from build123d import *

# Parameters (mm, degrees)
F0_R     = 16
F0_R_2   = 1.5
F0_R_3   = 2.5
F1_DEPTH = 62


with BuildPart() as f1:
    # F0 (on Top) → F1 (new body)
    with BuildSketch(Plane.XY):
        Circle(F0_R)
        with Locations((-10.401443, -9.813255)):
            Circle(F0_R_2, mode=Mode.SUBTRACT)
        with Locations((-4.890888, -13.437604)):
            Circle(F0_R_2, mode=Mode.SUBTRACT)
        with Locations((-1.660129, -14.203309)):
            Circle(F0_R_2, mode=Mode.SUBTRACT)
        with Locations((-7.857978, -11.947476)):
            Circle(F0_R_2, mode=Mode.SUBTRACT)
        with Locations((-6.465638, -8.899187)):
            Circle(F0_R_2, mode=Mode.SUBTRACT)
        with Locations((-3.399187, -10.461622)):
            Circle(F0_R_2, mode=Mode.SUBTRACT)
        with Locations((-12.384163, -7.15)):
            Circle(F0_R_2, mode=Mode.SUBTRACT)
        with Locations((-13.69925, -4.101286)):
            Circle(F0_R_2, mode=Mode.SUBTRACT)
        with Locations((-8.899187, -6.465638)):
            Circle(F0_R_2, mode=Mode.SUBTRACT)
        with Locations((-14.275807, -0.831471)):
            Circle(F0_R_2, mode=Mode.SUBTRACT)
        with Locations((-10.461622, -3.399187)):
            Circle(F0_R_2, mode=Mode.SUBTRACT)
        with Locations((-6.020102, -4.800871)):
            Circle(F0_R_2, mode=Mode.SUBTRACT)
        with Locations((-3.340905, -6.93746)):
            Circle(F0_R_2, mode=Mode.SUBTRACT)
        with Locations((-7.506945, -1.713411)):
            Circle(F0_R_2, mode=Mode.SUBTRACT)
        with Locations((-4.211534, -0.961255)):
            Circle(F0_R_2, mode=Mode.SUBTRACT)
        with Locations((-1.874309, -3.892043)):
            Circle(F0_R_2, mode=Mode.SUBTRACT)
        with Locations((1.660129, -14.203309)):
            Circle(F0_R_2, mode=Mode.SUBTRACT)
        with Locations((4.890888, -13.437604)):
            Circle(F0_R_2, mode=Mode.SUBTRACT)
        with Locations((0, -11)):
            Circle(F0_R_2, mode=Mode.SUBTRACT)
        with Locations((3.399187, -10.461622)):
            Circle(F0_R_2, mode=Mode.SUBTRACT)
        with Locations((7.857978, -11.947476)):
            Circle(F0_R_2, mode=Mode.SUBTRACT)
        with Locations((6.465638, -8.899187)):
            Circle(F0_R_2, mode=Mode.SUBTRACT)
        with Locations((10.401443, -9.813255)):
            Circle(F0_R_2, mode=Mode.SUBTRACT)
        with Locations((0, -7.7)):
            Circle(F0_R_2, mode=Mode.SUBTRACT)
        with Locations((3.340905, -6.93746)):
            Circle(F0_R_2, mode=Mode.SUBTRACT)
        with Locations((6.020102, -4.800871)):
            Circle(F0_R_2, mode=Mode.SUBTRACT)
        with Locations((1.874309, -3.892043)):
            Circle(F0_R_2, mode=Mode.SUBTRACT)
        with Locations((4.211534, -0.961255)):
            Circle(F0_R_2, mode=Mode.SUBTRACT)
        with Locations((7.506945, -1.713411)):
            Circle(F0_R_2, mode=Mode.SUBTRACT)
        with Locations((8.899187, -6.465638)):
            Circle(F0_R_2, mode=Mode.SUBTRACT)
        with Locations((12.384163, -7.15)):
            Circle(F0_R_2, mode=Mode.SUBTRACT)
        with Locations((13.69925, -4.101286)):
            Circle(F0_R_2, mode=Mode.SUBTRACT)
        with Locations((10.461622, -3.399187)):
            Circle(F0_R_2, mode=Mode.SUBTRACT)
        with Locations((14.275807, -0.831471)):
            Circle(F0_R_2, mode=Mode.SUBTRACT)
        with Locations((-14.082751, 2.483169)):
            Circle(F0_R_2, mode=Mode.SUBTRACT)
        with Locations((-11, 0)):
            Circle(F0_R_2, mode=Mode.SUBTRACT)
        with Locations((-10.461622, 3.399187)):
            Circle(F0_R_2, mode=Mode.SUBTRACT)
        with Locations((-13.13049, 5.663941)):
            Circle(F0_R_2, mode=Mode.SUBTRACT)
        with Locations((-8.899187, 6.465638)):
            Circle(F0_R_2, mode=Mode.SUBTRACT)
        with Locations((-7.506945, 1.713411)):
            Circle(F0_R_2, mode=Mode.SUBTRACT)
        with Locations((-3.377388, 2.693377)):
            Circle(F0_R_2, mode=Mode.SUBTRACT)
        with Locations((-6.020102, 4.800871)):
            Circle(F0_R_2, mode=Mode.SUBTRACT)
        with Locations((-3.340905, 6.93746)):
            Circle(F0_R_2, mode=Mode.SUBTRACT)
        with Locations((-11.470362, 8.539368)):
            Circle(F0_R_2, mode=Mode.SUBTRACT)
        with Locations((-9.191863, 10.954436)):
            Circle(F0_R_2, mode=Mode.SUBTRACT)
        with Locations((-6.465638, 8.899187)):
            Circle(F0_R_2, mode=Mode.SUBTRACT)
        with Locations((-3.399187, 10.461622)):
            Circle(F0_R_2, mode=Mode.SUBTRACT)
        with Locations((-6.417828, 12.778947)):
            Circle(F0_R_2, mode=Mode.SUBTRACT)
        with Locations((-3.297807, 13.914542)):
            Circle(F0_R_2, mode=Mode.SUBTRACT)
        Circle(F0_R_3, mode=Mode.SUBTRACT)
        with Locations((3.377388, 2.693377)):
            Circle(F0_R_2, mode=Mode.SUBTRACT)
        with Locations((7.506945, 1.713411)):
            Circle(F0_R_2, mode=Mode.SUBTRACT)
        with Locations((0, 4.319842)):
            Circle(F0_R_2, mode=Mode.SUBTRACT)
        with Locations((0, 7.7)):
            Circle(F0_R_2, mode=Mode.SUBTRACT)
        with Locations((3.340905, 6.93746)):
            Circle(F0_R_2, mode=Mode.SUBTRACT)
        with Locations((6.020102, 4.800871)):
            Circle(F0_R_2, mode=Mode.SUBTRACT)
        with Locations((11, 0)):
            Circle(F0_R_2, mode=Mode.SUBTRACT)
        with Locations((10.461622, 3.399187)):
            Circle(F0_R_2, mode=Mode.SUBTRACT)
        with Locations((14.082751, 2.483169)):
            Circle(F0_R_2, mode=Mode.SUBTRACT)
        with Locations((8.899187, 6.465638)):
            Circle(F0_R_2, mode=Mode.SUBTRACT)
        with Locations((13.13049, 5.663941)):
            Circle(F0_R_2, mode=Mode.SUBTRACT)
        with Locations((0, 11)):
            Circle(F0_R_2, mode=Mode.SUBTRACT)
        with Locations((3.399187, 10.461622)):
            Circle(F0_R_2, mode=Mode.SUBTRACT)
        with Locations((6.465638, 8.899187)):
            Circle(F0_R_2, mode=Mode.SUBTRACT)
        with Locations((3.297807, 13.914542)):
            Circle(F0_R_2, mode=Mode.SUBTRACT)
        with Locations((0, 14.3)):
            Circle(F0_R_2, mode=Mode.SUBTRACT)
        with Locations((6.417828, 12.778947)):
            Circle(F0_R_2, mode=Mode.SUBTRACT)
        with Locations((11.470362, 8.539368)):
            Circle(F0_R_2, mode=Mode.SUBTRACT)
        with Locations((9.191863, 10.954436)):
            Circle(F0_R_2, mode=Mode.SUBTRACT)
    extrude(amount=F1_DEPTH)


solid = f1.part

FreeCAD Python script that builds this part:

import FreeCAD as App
import Part
import Sketcher
from FreeCAD import Vector
Q = App.Units.Quantity

doc = App.newDocument("Part")
body = doc.addObject("PartDesign::Body", "Body")

# Sketch on XY plane
sketch1 = doc.addObject("Sketcher::SketchObject", "Sketch")
body.addObject(sketch1)
sketch1.AttachmentSupport = (doc.XY_Plane, [""])
sketch1.MapMode = "FlatFace"
sketch1.addGeometry([
    Part.Circle(Vector(0, 0, 0), Vector(0, 0, 1), 16),  # 0
    Part.Circle(Vector(-10.4, -9.8, 0), Vector(0, 0, 1), 1.5),  # 1
    Part.Circle(Vector(-7.9, -11.9, 0), Vector(0, 0, 1), 1.5),  # 2
    Part.Circle(Vector(-4.9, -13.4, 0), Vector(0, 0, 1), 1.5),  # 3
    Part.Circle(Vector(-1.7, -14.2, 0), Vector(0, 0, 1), 1.5),  # 4
    Part.Circle(Vector(-6.5, -8.9, 0), Vector(0, 0, 1), 1.5),  # 5
    Part.Circle(Vector(-3.4, -10.5, 0), Vector(0, 0, 1), 1.5),  # 6
    Part.Circle(Vector(-12.4, -7.2, 0), Vector(0, 0, 1), 1.5),  # 7
    Part.Circle(Vector(-13.7, -4.1, 0), Vector(0, 0, 1), 1.5),  # 8
    Part.Circle(Vector(-8.9, -6.5, 0), Vector(0, 0, 1), 1.5),  # 9
    Part.Circle(Vector(-14.3, -0.8, 0), Vector(0, 0, 1), 1.5),  # 10
    Part.Circle(Vector(-10.5, -3.4, 0), Vector(0, 0, 1), 1.5),  # 11
    Part.Circle(Vector(-11, 0, 0), Vector(0, 0, 1), 1.5),  # 12
    Part.Circle(Vector(-6, -4.8, 0), Vector(0, 0, 1), 1.5),  # 13
    Part.Circle(Vector(-3.3, -6.9, 0), Vector(0, 0, 1), 1.5),  # 14
    Part.Circle(Vector(-1.9, -3.9, 0), Vector(0, 0, 1), 1.5),  # 15
    Part.Circle(Vector(-7.5, -1.7, 0), Vector(0, 0, 1), 1.5),  # 16
    Part.Circle(Vector(-4.2, -1, 0), Vector(0, 0, 1), 1.5),  # 17
    Part.Circle(Vector(1.7, -14.2, 0), Vector(0, 0, 1), 1.5),  # 18
    Part.Circle(Vector(4.9, -13.4, 0), Vector(0, 0, 1), 1.5),  # 19
    Part.Circle(Vector(7.9, -11.9, 0), Vector(0, 0, 1), 1.5),  # 20
    Part.Circle(Vector(0, -11, 0), Vector(0, 0, 1), 1.5),  # 21
    Part.Circle(Vector(3.4, -10.5, 0), Vector(0, 0, 1), 1.5),  # 22
    Part.Circle(Vector(6.5, -8.9, 0), Vector(0, 0, 1), 1.5),  # 23
    Part.Circle(Vector(10.4, -9.8, 0), Vector(0, 0, 1), 1.5),  # 24
    Part.Circle(Vector(0, -7.7, 0), Vector(0, 0, 1), 1.5),  # 25
    Part.Circle(Vector(3.3, -6.9, 0), Vector(0, 0, 1), 1.5),  # 26
    Part.Circle(Vector(1.9, -3.9, 0), Vector(0, 0, 1), 1.5),  # 27
    Part.Circle(Vector(6, -4.8, 0), Vector(0, 0, 1), 1.5),  # 28
    Part.Circle(Vector(0, 0, 0), Vector(0, 0, 1), 2.5),  # 29
    Part.Circle(Vector(4.2, -1, 0), Vector(0, 0, 1), 1.5),  # 30
    Part.Circle(Vector(7.5, -1.7, 0), Vector(0, 0, 1), 1.5),  # 31
    Part.Circle(Vector(8.9, -6.5, 0), Vector(0, 0, 1), 1.5),  # 32
    Part.Circle(Vector(12.4, -7.2, 0), Vector(0, 0, 1), 1.5),  # 33
    Part.Circle(Vector(13.7, -4.1, 0), Vector(0, 0, 1), 1.5),  # 34
    Part.Circle(Vector(10.5, -3.4, 0), Vector(0, 0, 1), 1.5),  # 35
    Part.Circle(Vector(11, 0, 0), Vector(0, 0, 1), 1.5),  # 36
    Part.Circle(Vector(14.3, -0.8, 0), Vector(0, 0, 1), 1.5),  # 37
    Part.Circle(Vector(-14.1, 2.5, 0), Vector(0, 0, 1), 1.5),  # 38
    Part.Circle(Vector(-10.5, 3.4, 0), Vector(0, 0, 1), 1.5),  # 39
    Part.Circle(Vector(-13.1, 5.7, 0), Vector(0, 0, 1), 1.5),  # 40
    Part.Circle(Vector(-8.9, 6.5, 0), Vector(0, 0, 1), 1.5),  # 41
    Part.Circle(Vector(-7.5, 1.7, 0), Vector(0, 0, 1), 1.5),  # 42
    Part.Circle(Vector(-3.4, 2.7, 0), Vector(0, 0, 1), 1.5),  # 43
    Part.Circle(Vector(-6, 4.8, 0), Vector(0, 0, 1), 1.5),  # 44
    Part.Circle(Vector(-3.3, 6.9, 0), Vector(0, 0, 1), 1.5),  # 45
    Part.Circle(Vector(-11.5, 8.5, 0), Vector(0, 0, 1), 1.5),  # 46
    Part.Circle(Vector(-9.2, 11, 0), Vector(0, 0, 1), 1.5),  # 47
    Part.Circle(Vector(-6.5, 8.9, 0), Vector(0, 0, 1), 1.5),  # 48
    Part.Circle(Vector(-3.4, 10.5, 0), Vector(0, 0, 1), 1.5),  # 49
    Part.Circle(Vector(-6.4, 12.8, 0), Vector(0, 0, 1), 1.5),  # 50
    Part.Circle(Vector(-3.3, 13.9, 0), Vector(0, 0, 1), 1.5),  # 51
    Part.Circle(Vector(3.4, 2.7, 0), Vector(0, 0, 1), 1.5),  # 52
    Part.Circle(Vector(7.5, 1.7, 0), Vector(0, 0, 1), 1.5),  # 53
    Part.Circle(Vector(0, 4.3, 0), Vector(0, 0, 1), 1.5),  # 54
    Part.Circle(Vector(0, 7.7, 0), Vector(0, 0, 1), 1.5),  # 55
    Part.Circle(Vector(3.3, 6.9, 0), Vector(0, 0, 1), 1.5),  # 56
    Part.Circle(Vector(6, 4.8, 0), Vector(0, 0, 1), 1.5),  # 57
    Part.Circle(Vector(10.5, 3.4, 0), Vector(0, 0, 1), 1.5),  # 58
    Part.Circle(Vector(14.1, 2.5, 0), Vector(0, 0, 1), 1.5),  # 59
    Part.Circle(Vector(8.9, 6.5, 0), Vector(0, 0, 1), 1.5),  # 60
    Part.Circle(Vector(13.1, 5.7, 0), Vector(0, 0, 1), 1.5),  # 61
    Part.Circle(Vector(0, 11, 0), Vector(0, 0, 1), 1.5),  # 62
    Part.Circle(Vector(3.4, 10.5, 0), Vector(0, 0, 1), 1.5),  # 63
    Part.Circle(Vector(6.5, 8.9, 0), Vector(0, 0, 1), 1.5),  # 64
    Part.Circle(Vector(0, 14.3, 0), Vector(0, 0, 1), 1.5),  # 65
    Part.Circle(Vector(3.3, 13.9, 0), Vector(0, 0, 1), 1.5),  # 66
    Part.Circle(Vector(6.4, 12.8, 0), Vector(0, 0, 1), 1.5),  # 67
    Part.Circle(Vector(11.5, 8.5, 0), Vector(0, 0, 1), 1.5),  # 68
    Part.Circle(Vector(9.2, 11, 0), Vector(0, 0, 1), 1.5),  # 69
], False)
sketch1.addConstraint([
    Sketcher.Constraint("Coincident", 0, 3, -1, 1),
    Sketcher.Constraint("Coincident", 29, 3, -1, 1),
    Sketcher.Constraint("Equal", 1, 2),
    Sketcher.Constraint("Equal", 2, 3),
    Sketcher.Constraint("Equal", 3, 4),
    Sketcher.Constraint("Equal", 4, 5),
    Sketcher.Constraint("Equal", 5, 6),
    Sketcher.Constraint("Equal", 6, 7),
    Sketcher.Constraint("Equal", 7, 8),
    Sketcher.Constraint("Equal", 8, 9),
    Sketcher.Constraint("Equal", 9, 10),
    Sketcher.Constraint("Equal", 10, 11),
    Sketcher.Constraint("Equal", 11, 12),
    Sketcher.Constraint("Equal", 12, 13),
    Sketcher.Constraint("Equal", 13, 14),
    Sketcher.Constraint("Equal", 14, 15),
    Sketcher.Constraint("Equal", 15, 16),
    Sketcher.Constraint("Equal", 16, 17),
    Sketcher.Constraint("Equal", 17, 18),
    Sketcher.Constraint("Equal", 18, 19),
    Sketcher.Constraint("Equal", 19, 20),
    Sketcher.Constraint("Equal", 20, 21),
    Sketcher.Constraint("Equal", 21, 22),
    Sketcher.Constraint("Equal", 22, 23),
    Sketcher.Constraint("Equal", 23, 24),
    Sketcher.Constraint("Equal", 24, 25),
    Sketcher.Constraint("Equal", 25, 26),
    Sketcher.Constraint("Equal", 26, 27),
    Sketcher.Constraint("Equal", 27, 28),
    Sketcher.Constraint("Equal", 28, 30),
    Sketcher.Constraint("Equal", 30, 31),
    Sketcher.Constraint("Equal", 31, 32),
    Sketcher.Constraint("Equal", 32, 33),
    Sketcher.Constraint("Equal", 33, 34),
    Sketcher.Constraint("Equal", 34, 35),
    Sketcher.Constraint("Equal", 35, 36),
    Sketcher.Constraint("Equal", 36, 37),
    Sketcher.Constraint("Equal", 37, 38),
    Sketcher.Constraint("Equal", 38, 39),
    Sketcher.Constraint("Equal", 39, 40),
    Sketcher.Constraint("Equal", 40, 41),
    Sketcher.Constraint("Equal", 41, 42),
    Sketcher.Constraint("Equal", 42, 43),
    Sketcher.Constraint("Equal", 43, 44),
    Sketcher.Constraint("Equal", 44, 45),
    Sketcher.Constraint("Equal", 45, 46),
    Sketcher.Constraint("Equal", 46, 47),
    Sketcher.Constraint("Equal", 47, 48),
    Sketcher.Constraint("Equal", 48, 49),
    Sketcher.Constraint("Equal", 49, 50),
    Sketcher.Constraint("Equal", 50, 51),
    Sketcher.Constraint("Equal", 51, 52),
    Sketcher.Constraint("Equal", 52, 53),
    Sketcher.Constraint("Equal", 53, 54),
    Sketcher.Constraint("Equal", 54, 55),
    Sketcher.Constraint("Equal", 55, 56),
    Sketcher.Constraint("Equal", 56, 57),
    Sketcher.Constraint("Equal", 57, 58),
    Sketcher.Constraint("Equal", 58, 59),
    Sketcher.Constraint("Equal", 59, 60),
    Sketcher.Constraint("Equal", 60, 61),
    Sketcher.Constraint("Equal", 61, 62),
    Sketcher.Constraint("Equal", 62, 63),
    Sketcher.Constraint("Equal", 63, 64),
    Sketcher.Constraint("Equal", 64, 65),
    Sketcher.Constraint("Equal", 65, 66),
    Sketcher.Constraint("Equal", 66, 67),
    Sketcher.Constraint("Equal", 67, 68),
    Sketcher.Constraint("Equal", 68, 69),
    Sketcher.Constraint("Symmetric", 12, 3, 36, 3, -1, 1),
    Sketcher.Constraint("Symmetric", 35, 3, 39, 3, -1, 1),
    Sketcher.Constraint("Symmetric", 32, 3, 41, 3, -1, 1),
    Sketcher.Constraint("Symmetric", 31, 3, 42, 3, -1, 1),
    Sketcher.Constraint("Symmetric", 28, 3, 44, 3, -1, 1),
    Sketcher.Constraint("Symmetric", 26, 3, 45, 3, -1, 1),
    Sketcher.Constraint("Symmetric", 23, 3, 48, 3, -1, 1),
    Sketcher.Constraint("Symmetric", 22, 3, 49, 3, -1, 1),
    Sketcher.Constraint("Symmetric", 16, 3, 53, 3, -1, 1),
    Sketcher.Constraint("Symmetric", 25, 3, 55, 3, -1, 1),
    Sketcher.Constraint("Symmetric", 14, 3, 56, 3, -1, 1),
    Sketcher.Constraint("Symmetric", 13, 3, 57, 3, -1, 1),
    Sketcher.Constraint("Symmetric", 11, 3, 58, 3, -1, 1),
    Sketcher.Constraint("Symmetric", 9, 3, 60, 3, -1, 1),
    Sketcher.Constraint("Symmetric", 21, 3, 62, 3, -1, 1),
    Sketcher.Constraint("Symmetric", 6, 3, 63, 3, -1, 1),
    Sketcher.Constraint("Symmetric", 5, 3, 64, 3, -1, 1),
    Sketcher.Constraint("Symmetric", 4, 3, 18, 3, -2),
    Sketcher.Constraint("Symmetric", 3, 3, 19, 3, -2),
    Sketcher.Constraint("Symmetric", 2, 3, 20, 3, -2),
    Sketcher.Constraint("Symmetric", 6, 3, 22, 3, -2),
    Sketcher.Constraint("Symmetric", 5, 3, 23, 3, -2),
    Sketcher.Constraint("Symmetric", 1, 3, 24, 3, -2),
    Sketcher.Constraint("Symmetric", 14, 3, 26, 3, -2),
    Sketcher.Constraint("Symmetric", 15, 3, 27, 3, -2),
    Sketcher.Constraint("Symmetric", 13, 3, 28, 3, -2),
    Sketcher.Constraint("Symmetric", 17, 3, 30, 3, -2),
    Sketcher.Constraint("Symmetric", 16, 3, 31, 3, -2),
    Sketcher.Constraint("Symmetric", 9, 3, 32, 3, -2),
    Sketcher.Constraint("Symmetric", 7, 3, 33, 3, -2),
    Sketcher.Constraint("Symmetric", 8, 3, 34, 3, -2),
    Sketcher.Constraint("Symmetric", 11, 3, 35, 3, -2),
    Sketcher.Constraint("Symmetric", 10, 3, 37, 3, -2),
    Sketcher.Constraint("Symmetric", 43, 3, 52, 3, -2),
    Sketcher.Constraint("Symmetric", 38, 3, 59, 3, -2),
    Sketcher.Constraint("Symmetric", 40, 3, 61, 3, -2),
    Sketcher.Constraint("Symmetric", 51, 3, 66, 3, -2),
    Sketcher.Constraint("Symmetric", 50, 3, 67, 3, -2),
    Sketcher.Constraint("Symmetric", 46, 3, 68, 3, -2),
    Sketcher.Constraint("Symmetric", 47, 3, 69, 3, -2),
    Sketcher.Constraint("PointOnObject", 12, 3, -1),
    Sketcher.Constraint("PointOnObject", 21, 3, -2),
    Sketcher.Constraint("PointOnObject", 25, 3, -2),
    Sketcher.Constraint("PointOnObject", 54, 3, -2),
    Sketcher.Constraint("PointOnObject", 65, 3, -2),
    Sketcher.Constraint("Diameter", 0, Q("32 mm")),
    Sketcher.Constraint("Diameter", 1, Q("3 mm")),
    Sketcher.Constraint("Diameter", 29, Q("5 mm")),
    Sketcher.Constraint("DistanceX", 12, 3, -1, 1, Q("11 mm")),
    Sketcher.Constraint("DistanceY", 21, 3, -1, 1, Q("11 mm")),
    Sketcher.Constraint("DistanceY", 25, 3, -1, 1, Q("7.7 mm")),
    Sketcher.Constraint("DistanceY", -1, 1, 65, 3, Q("14.3 mm")),
    Sketcher.Constraint("DistanceY", 7, 3, -1, 1, Q("7.15 mm")),
    Sketcher.Constraint("DistanceX", 13, 3, -1, 1, Q("6.020102 mm")),
    Sketcher.Constraint("DistanceX", 3, 3, -1, 1, Q("4.890888 mm")),
    Sketcher.Constraint("DistanceX", 4, 3, -1, 1, Q("1.660129 mm")),
    Sketcher.Constraint("DistanceY", 4, 3, -1, 1, Q("14.203309 mm")),
    Sketcher.Constraint("DistanceX", 5, 3, -1, 1, Q("6.465638 mm")),
    Sketcher.Constraint("DistanceX", 8, 3, -1, 1, Q("13.69925 mm")),
    Sketcher.Constraint("DistanceY", 9, 3, -1, 1, Q("6.465638 mm")),
    Sketcher.Constraint("DistanceY", 10, 3, -1, 1, Q("0.831471 mm")),
    Sketcher.Constraint("DistanceY", 13, 3, -1, 1, Q("4.800871 mm")),
    Sketcher.Constraint("DistanceY", 14, 3, -1, 1, Q("6.93746 mm")),
    Sketcher.Constraint("DistanceX", 15, 3, -1, 1, Q("1.874309 mm")),
    Sketcher.Constraint("DistanceY", 16, 3, -1, 1, Q("1.713411 mm")),
    Sketcher.Constraint("DistanceX", 38, 3, -1, 1, Q("14.082751 mm")),
    Sketcher.Constraint("DistanceY", -1, 1, 38, 3, Q("2.483169 mm")),
    Sketcher.Constraint("DistanceX", 40, 3, -1, 1, Q("13.13049 mm")),
    Sketcher.Constraint("DistanceY", -1, 1, 40, 3, Q("5.663941 mm")),
    Sketcher.Constraint("DistanceX", 1, 3, -1, 1, Q("10.401443 mm")),
    Sketcher.Constraint("DistanceY", 1, 3, -1, 1, Q("9.813255 mm")),
    Sketcher.Constraint("DistanceX", 2, 3, -1, 1, Q("7.857978 mm")),
    Sketcher.Constraint("DistanceY", 2, 3, -1, 1, Q("11.947476 mm")),
    Sketcher.Constraint("DistanceY", 3, 3, -1, 1, Q("13.437604 mm")),
    Sketcher.Constraint("DistanceY", 5, 3, -1, 1, Q("8.899187 mm")),
    Sketcher.Constraint("DistanceX", 6, 3, -1, 1, Q("3.399187 mm")),
    Sketcher.Constraint("DistanceY", 6, 3, -1, 1, Q("10.461622 mm")),
    Sketcher.Constraint("DistanceX", 7, 3, -1, 1, Q("12.384163 mm")),
    Sketcher.Constraint("DistanceY", 8, 3, -1, 1, Q("4.101286 mm")),
    Sketcher.Constraint("DistanceX", 9, 3, -1, 1, Q("8.899187 mm")),
    Sketcher.Constraint("DistanceX", 10, 3, -1, 1, Q("14.275807 mm")),
    Sketcher.Constraint("DistanceX", 11, 3, -1, 1, Q("10.461622 mm")),
    Sketcher.Constraint("DistanceY", 11, 3, -1, 1, Q("3.399187 mm")),
    Sketcher.Constraint("DistanceX", 14, 3, -1, 1, Q("3.340905 mm")),
    Sketcher.Constraint("DistanceY", 15, 3, -1, 1, Q("3.892043 mm")),
    Sketcher.Constraint("DistanceX", 16, 3, -1, 1, Q("7.506945 mm")),
    Sketcher.Constraint("DistanceX", 17, 3, -1, 1, Q("4.211534 mm")),
    Sketcher.Constraint("DistanceY", 17, 3, -1, 1, Q("0.961255 mm")),
    Sketcher.Constraint("DistanceX", 43, 3, -1, 1, Q("3.377388 mm")),
    Sketcher.Constraint("DistanceY", -1, 1, 43, 3, Q("2.693377 mm")),
    Sketcher.Constraint("DistanceX", 46, 3, -1, 1, Q("11.470362 mm")),
    Sketcher.Constraint("DistanceY", -1, 1, 46, 3, Q("8.539368 mm")),
    Sketcher.Constraint("DistanceX", 47, 3, -1, 1, Q("9.191863 mm")),
    Sketcher.Constraint("DistanceY", -1, 1, 47, 3, Q("10.954436 mm")),
    Sketcher.Constraint("DistanceX", 50, 3, -1, 1, Q("6.417828 mm")),
    Sketcher.Constraint("DistanceY", -1, 1, 50, 3, Q("12.778947 mm")),
    Sketcher.Constraint("DistanceX", 51, 3, -1, 1, Q("3.297807 mm")),
    Sketcher.Constraint("DistanceY", -1, 1, 51, 3, Q("13.914542 mm")),
    Sketcher.Constraint("DistanceY", -1, 1, 54, 3, Q("4.319842 mm")),
])
pad1 = doc.addObject("PartDesign::Pad", "Pad")
body.addObject(pad1)
pad1.Profile = sketch1
pad1.Length = 62

doc.recompute()
